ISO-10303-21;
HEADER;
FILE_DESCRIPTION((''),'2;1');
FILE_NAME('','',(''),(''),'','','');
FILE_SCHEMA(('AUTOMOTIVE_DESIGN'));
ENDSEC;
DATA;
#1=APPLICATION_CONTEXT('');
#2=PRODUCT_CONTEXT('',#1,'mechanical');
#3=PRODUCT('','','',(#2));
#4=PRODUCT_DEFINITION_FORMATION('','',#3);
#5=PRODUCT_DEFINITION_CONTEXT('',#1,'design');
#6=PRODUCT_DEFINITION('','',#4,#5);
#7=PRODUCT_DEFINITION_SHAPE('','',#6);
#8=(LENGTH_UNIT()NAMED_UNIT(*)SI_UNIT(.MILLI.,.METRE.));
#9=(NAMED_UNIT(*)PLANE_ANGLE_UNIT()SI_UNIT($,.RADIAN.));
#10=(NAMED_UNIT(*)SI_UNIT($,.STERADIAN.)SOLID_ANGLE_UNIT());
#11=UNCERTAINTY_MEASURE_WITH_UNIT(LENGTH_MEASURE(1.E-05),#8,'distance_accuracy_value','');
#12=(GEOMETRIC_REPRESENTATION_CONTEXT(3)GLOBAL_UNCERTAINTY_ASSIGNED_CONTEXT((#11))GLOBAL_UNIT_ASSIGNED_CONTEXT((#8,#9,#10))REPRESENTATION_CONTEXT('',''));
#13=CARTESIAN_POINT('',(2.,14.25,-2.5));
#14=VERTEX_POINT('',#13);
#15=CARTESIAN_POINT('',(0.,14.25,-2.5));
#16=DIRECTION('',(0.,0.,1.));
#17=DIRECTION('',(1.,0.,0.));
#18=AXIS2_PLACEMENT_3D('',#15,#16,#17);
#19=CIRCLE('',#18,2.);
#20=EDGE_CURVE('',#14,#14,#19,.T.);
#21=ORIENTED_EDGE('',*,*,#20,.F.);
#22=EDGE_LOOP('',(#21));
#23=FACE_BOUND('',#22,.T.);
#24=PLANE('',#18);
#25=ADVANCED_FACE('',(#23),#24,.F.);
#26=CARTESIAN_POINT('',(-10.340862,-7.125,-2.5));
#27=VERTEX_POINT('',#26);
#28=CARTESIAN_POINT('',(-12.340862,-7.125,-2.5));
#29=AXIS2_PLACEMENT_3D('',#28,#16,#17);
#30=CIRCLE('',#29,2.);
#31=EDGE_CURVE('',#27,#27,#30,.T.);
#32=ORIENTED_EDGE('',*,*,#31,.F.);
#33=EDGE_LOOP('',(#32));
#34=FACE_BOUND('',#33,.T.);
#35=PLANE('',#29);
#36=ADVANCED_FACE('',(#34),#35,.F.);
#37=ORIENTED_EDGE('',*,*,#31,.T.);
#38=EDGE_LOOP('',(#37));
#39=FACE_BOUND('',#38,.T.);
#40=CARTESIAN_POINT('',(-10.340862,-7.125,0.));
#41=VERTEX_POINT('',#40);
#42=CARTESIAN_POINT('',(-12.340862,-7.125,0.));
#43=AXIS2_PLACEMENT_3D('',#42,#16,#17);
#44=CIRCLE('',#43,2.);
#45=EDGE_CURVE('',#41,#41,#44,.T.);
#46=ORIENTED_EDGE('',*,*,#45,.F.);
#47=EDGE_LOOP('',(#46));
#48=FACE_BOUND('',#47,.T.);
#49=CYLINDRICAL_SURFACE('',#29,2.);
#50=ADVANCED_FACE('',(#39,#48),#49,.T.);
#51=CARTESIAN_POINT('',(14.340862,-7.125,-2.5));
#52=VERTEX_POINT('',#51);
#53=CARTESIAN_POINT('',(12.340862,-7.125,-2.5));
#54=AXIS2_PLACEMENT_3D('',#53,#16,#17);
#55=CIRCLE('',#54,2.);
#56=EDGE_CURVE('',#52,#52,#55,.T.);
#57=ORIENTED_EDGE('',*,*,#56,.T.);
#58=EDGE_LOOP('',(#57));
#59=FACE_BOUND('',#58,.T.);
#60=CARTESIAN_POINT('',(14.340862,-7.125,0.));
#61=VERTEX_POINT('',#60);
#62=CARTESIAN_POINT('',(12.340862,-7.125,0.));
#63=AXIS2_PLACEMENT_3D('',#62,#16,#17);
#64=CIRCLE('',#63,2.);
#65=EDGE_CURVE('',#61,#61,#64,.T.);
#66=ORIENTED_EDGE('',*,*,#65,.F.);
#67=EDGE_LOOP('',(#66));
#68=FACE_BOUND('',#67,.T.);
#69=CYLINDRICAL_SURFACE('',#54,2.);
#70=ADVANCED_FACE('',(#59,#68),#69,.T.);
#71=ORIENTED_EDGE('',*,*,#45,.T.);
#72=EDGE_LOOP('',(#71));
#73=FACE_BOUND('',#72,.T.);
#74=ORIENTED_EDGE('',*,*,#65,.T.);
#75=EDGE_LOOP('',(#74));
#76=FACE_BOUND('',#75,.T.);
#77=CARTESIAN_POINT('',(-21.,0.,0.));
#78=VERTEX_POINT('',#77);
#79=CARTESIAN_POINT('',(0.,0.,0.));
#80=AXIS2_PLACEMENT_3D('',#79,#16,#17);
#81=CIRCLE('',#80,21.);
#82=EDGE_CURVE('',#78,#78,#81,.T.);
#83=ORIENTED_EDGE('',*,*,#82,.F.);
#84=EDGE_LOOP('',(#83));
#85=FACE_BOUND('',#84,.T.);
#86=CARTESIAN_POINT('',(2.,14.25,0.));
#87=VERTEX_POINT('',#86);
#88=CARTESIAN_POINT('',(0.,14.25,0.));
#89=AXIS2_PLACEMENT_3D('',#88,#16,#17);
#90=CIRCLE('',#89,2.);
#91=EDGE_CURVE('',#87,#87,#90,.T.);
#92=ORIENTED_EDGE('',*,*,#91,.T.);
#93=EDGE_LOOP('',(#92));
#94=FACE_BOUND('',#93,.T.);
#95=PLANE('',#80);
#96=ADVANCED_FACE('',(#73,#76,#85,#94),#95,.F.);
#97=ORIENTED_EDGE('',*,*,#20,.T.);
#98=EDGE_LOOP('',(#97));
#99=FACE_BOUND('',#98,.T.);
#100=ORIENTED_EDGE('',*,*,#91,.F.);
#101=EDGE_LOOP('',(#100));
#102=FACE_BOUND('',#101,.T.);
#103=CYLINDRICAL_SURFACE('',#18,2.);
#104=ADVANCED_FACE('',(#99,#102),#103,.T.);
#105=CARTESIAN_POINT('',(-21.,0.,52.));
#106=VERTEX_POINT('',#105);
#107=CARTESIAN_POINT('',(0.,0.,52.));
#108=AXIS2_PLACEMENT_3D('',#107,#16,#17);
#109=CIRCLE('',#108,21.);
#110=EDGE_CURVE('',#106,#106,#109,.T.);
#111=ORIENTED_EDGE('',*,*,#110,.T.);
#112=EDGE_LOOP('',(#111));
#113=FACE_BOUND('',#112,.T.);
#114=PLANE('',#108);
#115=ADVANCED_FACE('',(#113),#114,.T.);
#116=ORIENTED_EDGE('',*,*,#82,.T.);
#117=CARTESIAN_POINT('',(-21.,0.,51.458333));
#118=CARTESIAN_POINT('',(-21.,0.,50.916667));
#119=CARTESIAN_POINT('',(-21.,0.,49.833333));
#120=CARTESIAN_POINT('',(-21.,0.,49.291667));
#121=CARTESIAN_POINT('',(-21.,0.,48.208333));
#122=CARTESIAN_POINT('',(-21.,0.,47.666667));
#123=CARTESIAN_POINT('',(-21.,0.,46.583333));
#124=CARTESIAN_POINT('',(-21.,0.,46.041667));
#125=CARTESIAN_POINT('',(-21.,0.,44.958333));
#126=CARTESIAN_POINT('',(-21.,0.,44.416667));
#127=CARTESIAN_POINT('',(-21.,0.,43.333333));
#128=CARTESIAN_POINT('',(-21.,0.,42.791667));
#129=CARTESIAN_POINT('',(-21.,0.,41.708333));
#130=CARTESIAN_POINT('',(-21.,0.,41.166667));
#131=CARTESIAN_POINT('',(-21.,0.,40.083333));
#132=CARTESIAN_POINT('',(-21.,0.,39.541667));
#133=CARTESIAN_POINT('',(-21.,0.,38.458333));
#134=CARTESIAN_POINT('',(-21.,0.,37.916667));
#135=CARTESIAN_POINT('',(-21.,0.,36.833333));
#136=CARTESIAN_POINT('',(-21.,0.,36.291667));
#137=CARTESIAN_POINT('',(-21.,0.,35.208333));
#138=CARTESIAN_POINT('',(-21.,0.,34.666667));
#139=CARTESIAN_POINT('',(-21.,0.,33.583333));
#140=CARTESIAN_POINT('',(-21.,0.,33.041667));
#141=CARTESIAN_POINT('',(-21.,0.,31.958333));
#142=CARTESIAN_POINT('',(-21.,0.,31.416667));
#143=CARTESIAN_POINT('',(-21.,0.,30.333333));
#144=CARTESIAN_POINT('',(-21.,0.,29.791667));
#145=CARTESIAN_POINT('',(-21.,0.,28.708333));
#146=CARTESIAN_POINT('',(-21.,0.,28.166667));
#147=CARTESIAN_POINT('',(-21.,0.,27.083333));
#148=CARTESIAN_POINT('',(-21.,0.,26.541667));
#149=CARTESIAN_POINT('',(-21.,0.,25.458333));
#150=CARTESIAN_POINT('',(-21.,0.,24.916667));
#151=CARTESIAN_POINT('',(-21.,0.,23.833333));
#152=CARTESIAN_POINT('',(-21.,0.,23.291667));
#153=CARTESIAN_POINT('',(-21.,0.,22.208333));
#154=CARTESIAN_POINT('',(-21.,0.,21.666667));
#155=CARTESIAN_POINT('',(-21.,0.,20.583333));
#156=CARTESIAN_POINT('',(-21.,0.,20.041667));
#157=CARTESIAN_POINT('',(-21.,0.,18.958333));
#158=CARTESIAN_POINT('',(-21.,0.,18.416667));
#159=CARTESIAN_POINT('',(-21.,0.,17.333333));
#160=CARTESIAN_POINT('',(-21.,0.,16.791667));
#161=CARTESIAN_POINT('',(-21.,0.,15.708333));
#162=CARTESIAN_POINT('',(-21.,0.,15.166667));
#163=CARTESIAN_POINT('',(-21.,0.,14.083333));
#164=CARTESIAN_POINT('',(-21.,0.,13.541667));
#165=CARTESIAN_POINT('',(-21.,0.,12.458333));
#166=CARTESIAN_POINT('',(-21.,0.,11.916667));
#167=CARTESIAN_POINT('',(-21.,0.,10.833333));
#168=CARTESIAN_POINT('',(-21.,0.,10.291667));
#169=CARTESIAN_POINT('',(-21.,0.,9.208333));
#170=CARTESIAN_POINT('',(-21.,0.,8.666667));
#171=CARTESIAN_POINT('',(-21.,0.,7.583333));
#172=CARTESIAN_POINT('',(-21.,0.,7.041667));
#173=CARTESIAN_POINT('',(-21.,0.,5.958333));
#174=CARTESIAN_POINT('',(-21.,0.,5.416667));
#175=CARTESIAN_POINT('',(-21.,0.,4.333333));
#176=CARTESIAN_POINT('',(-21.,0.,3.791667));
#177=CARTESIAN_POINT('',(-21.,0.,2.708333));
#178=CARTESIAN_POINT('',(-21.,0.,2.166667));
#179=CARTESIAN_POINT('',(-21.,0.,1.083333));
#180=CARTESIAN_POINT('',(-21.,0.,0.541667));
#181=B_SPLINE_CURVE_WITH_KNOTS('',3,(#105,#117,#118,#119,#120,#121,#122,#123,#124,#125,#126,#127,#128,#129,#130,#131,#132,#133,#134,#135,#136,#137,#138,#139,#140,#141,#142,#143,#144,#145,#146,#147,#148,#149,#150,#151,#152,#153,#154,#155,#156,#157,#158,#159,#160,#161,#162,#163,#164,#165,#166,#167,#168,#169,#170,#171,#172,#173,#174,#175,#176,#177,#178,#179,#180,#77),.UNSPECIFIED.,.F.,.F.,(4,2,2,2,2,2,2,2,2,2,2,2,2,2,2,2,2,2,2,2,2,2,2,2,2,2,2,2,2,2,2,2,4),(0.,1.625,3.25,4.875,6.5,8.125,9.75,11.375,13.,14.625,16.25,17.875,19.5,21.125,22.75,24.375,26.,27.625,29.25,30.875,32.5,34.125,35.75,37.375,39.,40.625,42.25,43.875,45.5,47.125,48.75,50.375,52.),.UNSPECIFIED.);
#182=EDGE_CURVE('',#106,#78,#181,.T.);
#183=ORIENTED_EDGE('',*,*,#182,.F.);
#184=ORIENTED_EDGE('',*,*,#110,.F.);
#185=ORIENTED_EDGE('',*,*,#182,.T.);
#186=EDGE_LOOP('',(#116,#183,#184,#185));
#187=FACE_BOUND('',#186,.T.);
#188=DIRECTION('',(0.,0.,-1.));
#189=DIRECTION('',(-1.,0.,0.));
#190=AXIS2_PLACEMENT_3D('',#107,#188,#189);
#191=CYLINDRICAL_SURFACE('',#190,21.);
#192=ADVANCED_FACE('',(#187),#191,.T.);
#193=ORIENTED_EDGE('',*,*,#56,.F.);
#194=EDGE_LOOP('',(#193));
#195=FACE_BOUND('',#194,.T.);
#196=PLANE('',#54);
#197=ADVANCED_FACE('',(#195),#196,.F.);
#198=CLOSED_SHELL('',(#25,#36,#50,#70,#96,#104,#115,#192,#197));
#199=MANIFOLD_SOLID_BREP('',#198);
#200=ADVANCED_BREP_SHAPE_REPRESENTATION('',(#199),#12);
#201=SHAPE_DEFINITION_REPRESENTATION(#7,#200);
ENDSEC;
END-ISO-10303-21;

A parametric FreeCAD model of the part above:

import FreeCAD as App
import Part
import Sketcher
from FreeCAD import Vector

doc = App.newDocument("Part")
body = doc.addObject("PartDesign::Body", "Body")

sketch1 = doc.addObject("Sketcher::SketchObject", "Sketch")
body.addObject(sketch1)
sketch1.AttachmentSupport = (doc.XY_Plane, [""])
sketch1.MapMode = "FlatFace"
sketch1.addGeometry(Part.Circle(Vector(0, 0, 0), Vector(0, 0, 1), 21), False)
sketch1.addConstraint([
    Sketcher.Constraint("Coincident", 0, 3, -1, 1),
    Sketcher.Constraint("Diameter", 0, 42.0),
])
pad1 = doc.addObject("PartDesign::Pad", "Pad")
body.addObject(pad1)
pad1.Profile = sketch1
pad1.Length = 52

sketch2 = doc.addObject("Sketcher::SketchObject", "Sketch001")
body.addObject(sketch2)
sketch2.AttachmentSupport = (doc.XY_Plane, [""])
sketch2.MapMode = "FlatFace"
sketch2.addGeometry([
    Part.Circle(Vector(0, 14.25, 0), Vector(0, 0, 1), 2),
    Part.Circle(Vector(12.340862, -7.125, 0), Vector(0, 0, 1), 2),
    Part.Circle(Vector(-12.340862, -7.125, 0), Vector(0, 0, 1), 2),
], False)
sketch2.addConstraint([
    Sketcher.Constraint("Equal", 0, 1),
    Sketcher.Constraint("Equal", 1, 2),
    Sketcher.Constraint("Symmetric", 1, 3, 2, 3, -2),
    Sketcher.Constraint("PointOnObject", 0, 3, -2),
    Sketcher.Constraint("Diameter", 0, 4.0),
    Sketcher.Constraint("DistanceY", -1, 1, 0, 3, 14.25),
    Sketcher.Constraint("DistanceY", 1, 3, -1, 1, 7.125),
    Sketcher.Constraint("DistanceX", -1, 1, 1, 3, 12.340862),
])
pad2 = doc.addObject("PartDesign::Pad", "Pad001")
body.addObject(pad2)
pad2.Profile = sketch2
pad2.Length = 2.5
pad2.Reversed = True

doc.recompute()
